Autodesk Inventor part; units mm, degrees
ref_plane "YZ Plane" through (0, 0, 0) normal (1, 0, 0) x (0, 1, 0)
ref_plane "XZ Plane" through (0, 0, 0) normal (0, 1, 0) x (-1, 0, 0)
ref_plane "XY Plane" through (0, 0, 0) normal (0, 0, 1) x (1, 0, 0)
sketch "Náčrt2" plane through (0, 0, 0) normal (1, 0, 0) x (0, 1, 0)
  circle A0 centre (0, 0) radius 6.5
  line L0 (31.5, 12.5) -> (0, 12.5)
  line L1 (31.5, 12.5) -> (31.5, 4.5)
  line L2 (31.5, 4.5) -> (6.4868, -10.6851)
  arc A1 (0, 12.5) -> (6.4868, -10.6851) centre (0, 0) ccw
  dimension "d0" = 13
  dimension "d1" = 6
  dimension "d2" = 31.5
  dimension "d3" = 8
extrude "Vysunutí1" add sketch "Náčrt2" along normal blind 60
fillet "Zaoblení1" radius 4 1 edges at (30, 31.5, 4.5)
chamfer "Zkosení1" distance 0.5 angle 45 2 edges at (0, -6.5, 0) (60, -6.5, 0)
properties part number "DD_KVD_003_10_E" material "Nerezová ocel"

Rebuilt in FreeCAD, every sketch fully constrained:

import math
import FreeCAD as App
import Part
import Sketcher

V = App.Vector


def edges_at(feature, points):
    """Names of the edges that pass closest to the given points."""
    edges = feature.Shape.Edges
    near = lambda p: min(range(len(edges)), key=lambda i: edges[i].distToShape(Part.Vertex(*p))[0])
    return sorted({f"Edge{near(p) + 1}" for p in points})

doc = App.newDocument("Part")
body = doc.addObject("PartDesign::Body", "Body")

# Sketch on YZ plane
sketch1 = doc.addObject("Sketcher::SketchObject", "Sketch")
body.addObject(sketch1)
sketch1.AttachmentSupport = (doc.YZ_Plane, [""])
sketch1.MapMode = "FlatFace"
sketch1.addGeometry([
    Part.LineSegment(V(32, 4, 0), V(32, 12, 0)),  # 0
    Part.LineSegment(V(32, 12, 0), V(0, 12, 0)),  # 1
    Part.ArcOfCircle(Part.Circle(V(0, 0, 0), V(0, 0, 1), 12), math.radians(90), math.radians(301)),  # 2
    Part.LineSegment(V(6, -11, 0), V(32, 4, 0)),  # 3
    Part.Circle(V(0, 0, 0), V(0, 0, 1), 6),  # 4
], False)
sketch1.addConstraint([
    Sketcher.Constraint("Coincident", 0, 2, 1, 1),
    Sketcher.Constraint("Tangent", 1, 2, 2, 1),
    Sketcher.Constraint("Tangent", 2, 2, 3, 1),
    Sketcher.Constraint("Coincident", 3, 2, 0, 1),
    Sketcher.Constraint("Vertical", 0),
    Sketcher.Constraint("Horizontal", 1),
    Sketcher.Constraint("Coincident", 2, 3, -1, 1),
    Sketcher.Constraint("Coincident", 4, 3, -1, 1),
    Sketcher.Constraint("Diameter", 4, 13.0),
    Sketcher.Constraint("DistanceY", 0, 1, 0, 2, 8.0),
    Sketcher.Constraint("DistanceX", 1, 2, 1, 1, 31.5),
    Sketcher.Constraint("Radius", 2, 12.5),
])
pad1 = doc.addObject("PartDesign::Pad", "Pad")
body.addObject(pad1)
pad1.Profile = sketch1
pad1.Length = 60
doc.recompute()

fillet = doc.addObject("PartDesign::Fillet", "Fillet")
body.addObject(fillet)
fillet.Base = (pad1, edges_at(pad1, [(30, 31.5, 4.5)]))
fillet.Radius = 4
doc.recompute()

chamfer = doc.addObject("PartDesign::Chamfer", "Chamfer")
body.addObject(chamfer)
chamfer.Base = (fillet, edges_at(fillet, [(0, -6.5, 0), (60, -6.5, 0)]))
chamfer.Size = 0.5

doc.recompute()
